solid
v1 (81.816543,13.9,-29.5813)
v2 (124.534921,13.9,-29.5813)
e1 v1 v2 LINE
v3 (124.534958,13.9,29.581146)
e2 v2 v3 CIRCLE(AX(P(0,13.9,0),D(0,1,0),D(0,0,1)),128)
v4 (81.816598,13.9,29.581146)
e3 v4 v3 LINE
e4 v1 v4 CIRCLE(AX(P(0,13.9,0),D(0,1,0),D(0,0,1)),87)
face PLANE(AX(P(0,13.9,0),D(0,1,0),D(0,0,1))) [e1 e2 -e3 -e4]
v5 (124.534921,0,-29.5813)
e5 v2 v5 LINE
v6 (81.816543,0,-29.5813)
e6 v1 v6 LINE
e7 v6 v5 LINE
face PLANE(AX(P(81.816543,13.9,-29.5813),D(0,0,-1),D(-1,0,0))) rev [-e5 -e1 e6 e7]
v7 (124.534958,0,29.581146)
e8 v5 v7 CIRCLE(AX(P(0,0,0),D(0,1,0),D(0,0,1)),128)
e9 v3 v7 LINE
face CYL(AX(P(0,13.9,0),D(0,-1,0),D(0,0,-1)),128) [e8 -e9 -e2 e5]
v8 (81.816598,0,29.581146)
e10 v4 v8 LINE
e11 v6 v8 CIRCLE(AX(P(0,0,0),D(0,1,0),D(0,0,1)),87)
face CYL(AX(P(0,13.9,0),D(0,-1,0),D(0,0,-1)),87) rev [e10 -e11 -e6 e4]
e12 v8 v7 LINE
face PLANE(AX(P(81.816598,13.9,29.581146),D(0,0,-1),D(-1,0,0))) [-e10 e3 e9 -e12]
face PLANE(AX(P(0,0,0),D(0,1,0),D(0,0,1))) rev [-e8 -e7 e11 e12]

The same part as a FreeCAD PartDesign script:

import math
import FreeCAD as App
import Part
import Sketcher

V = App.Vector
Q = App.Units.Quantity

doc = App.newDocument("Part")
params = doc.addObject("Spreadsheet::Sheet", "Params")
for row, (alias, value) in enumerate([
    ("sketch1_radius", "87 mm"),
    ("sketch1_radius2", "128 mm"),
    ("pad1_length", "13.9 mm"),
], start=1):
    params.set(f"A{row}", alias)
    params.set(f"B{row}", "=" + value)
    params.setAlias(f"B{row}", alias)

body = doc.addObject("PartDesign::Body", "Body")

# Sketch on XZ plane
sketch1 = body.newObject("Sketcher::SketchObject", "Sketch")
sketch1.AttachmentSupport = (doc.getObject("XZ_Plane"), [""])
sketch1.MapMode = "FlatFace"
sketch1.addGeometry([
    Part.LineSegment(V(125, 30, 0), V(82, 30, 0)),
    Part.ArcOfCircle(Part.Circle(V(0, 0, 0), V(0, 0, 1), 87), math.radians(20), math.radians(340)),
    Part.LineSegment(V(82, -30, 0), V(125, -30, 0)),
    Part.ArcOfCircle(Part.Circle(V(0, 0, 0), V(0, 0, 1), 128), math.radians(13), math.radians(347)),
], False)
sketch1.addConstraint([
    Sketcher.Constraint("Coincident", 0, 2, 1, 1),
    Sketcher.Constraint("Coincident", 1, 2, 2, 1),
    Sketcher.Constraint("Coincident", 2, 2, 3, 2),
    Sketcher.Constraint("Coincident", 3, 1, 0, 1),
    Sketcher.Constraint("Horizontal", 0),
    Sketcher.Constraint("Horizontal", 2),
    Sketcher.Constraint("Coincident", 1, 3, -1, 1),
    Sketcher.Constraint("Coincident", 3, 3, -1, 1),
    Sketcher.Constraint("Radius", 1, Q("87 mm")),
    Sketcher.Constraint("Radius", 3, Q("128 mm")),
    Sketcher.Constraint("DistanceX", 0, 2, 0, 1, Q("42.71836 mm")),
    Sketcher.Constraint("DistanceX", 2, 1, 2, 2, Q("42.718379 mm")),
])
sketch1.setExpression("Constraints[8]", "Params.sketch1_radius")
sketch1.setExpression("Constraints[9]", "Params.sketch1_radius2")
pad1 = body.newObject("PartDesign::Pad", "Pad")
pad1.Profile = sketch1
pad1.setExpression("Length", "Params.pad1_length")
pad1.Reversed = True

doc.recompute()
